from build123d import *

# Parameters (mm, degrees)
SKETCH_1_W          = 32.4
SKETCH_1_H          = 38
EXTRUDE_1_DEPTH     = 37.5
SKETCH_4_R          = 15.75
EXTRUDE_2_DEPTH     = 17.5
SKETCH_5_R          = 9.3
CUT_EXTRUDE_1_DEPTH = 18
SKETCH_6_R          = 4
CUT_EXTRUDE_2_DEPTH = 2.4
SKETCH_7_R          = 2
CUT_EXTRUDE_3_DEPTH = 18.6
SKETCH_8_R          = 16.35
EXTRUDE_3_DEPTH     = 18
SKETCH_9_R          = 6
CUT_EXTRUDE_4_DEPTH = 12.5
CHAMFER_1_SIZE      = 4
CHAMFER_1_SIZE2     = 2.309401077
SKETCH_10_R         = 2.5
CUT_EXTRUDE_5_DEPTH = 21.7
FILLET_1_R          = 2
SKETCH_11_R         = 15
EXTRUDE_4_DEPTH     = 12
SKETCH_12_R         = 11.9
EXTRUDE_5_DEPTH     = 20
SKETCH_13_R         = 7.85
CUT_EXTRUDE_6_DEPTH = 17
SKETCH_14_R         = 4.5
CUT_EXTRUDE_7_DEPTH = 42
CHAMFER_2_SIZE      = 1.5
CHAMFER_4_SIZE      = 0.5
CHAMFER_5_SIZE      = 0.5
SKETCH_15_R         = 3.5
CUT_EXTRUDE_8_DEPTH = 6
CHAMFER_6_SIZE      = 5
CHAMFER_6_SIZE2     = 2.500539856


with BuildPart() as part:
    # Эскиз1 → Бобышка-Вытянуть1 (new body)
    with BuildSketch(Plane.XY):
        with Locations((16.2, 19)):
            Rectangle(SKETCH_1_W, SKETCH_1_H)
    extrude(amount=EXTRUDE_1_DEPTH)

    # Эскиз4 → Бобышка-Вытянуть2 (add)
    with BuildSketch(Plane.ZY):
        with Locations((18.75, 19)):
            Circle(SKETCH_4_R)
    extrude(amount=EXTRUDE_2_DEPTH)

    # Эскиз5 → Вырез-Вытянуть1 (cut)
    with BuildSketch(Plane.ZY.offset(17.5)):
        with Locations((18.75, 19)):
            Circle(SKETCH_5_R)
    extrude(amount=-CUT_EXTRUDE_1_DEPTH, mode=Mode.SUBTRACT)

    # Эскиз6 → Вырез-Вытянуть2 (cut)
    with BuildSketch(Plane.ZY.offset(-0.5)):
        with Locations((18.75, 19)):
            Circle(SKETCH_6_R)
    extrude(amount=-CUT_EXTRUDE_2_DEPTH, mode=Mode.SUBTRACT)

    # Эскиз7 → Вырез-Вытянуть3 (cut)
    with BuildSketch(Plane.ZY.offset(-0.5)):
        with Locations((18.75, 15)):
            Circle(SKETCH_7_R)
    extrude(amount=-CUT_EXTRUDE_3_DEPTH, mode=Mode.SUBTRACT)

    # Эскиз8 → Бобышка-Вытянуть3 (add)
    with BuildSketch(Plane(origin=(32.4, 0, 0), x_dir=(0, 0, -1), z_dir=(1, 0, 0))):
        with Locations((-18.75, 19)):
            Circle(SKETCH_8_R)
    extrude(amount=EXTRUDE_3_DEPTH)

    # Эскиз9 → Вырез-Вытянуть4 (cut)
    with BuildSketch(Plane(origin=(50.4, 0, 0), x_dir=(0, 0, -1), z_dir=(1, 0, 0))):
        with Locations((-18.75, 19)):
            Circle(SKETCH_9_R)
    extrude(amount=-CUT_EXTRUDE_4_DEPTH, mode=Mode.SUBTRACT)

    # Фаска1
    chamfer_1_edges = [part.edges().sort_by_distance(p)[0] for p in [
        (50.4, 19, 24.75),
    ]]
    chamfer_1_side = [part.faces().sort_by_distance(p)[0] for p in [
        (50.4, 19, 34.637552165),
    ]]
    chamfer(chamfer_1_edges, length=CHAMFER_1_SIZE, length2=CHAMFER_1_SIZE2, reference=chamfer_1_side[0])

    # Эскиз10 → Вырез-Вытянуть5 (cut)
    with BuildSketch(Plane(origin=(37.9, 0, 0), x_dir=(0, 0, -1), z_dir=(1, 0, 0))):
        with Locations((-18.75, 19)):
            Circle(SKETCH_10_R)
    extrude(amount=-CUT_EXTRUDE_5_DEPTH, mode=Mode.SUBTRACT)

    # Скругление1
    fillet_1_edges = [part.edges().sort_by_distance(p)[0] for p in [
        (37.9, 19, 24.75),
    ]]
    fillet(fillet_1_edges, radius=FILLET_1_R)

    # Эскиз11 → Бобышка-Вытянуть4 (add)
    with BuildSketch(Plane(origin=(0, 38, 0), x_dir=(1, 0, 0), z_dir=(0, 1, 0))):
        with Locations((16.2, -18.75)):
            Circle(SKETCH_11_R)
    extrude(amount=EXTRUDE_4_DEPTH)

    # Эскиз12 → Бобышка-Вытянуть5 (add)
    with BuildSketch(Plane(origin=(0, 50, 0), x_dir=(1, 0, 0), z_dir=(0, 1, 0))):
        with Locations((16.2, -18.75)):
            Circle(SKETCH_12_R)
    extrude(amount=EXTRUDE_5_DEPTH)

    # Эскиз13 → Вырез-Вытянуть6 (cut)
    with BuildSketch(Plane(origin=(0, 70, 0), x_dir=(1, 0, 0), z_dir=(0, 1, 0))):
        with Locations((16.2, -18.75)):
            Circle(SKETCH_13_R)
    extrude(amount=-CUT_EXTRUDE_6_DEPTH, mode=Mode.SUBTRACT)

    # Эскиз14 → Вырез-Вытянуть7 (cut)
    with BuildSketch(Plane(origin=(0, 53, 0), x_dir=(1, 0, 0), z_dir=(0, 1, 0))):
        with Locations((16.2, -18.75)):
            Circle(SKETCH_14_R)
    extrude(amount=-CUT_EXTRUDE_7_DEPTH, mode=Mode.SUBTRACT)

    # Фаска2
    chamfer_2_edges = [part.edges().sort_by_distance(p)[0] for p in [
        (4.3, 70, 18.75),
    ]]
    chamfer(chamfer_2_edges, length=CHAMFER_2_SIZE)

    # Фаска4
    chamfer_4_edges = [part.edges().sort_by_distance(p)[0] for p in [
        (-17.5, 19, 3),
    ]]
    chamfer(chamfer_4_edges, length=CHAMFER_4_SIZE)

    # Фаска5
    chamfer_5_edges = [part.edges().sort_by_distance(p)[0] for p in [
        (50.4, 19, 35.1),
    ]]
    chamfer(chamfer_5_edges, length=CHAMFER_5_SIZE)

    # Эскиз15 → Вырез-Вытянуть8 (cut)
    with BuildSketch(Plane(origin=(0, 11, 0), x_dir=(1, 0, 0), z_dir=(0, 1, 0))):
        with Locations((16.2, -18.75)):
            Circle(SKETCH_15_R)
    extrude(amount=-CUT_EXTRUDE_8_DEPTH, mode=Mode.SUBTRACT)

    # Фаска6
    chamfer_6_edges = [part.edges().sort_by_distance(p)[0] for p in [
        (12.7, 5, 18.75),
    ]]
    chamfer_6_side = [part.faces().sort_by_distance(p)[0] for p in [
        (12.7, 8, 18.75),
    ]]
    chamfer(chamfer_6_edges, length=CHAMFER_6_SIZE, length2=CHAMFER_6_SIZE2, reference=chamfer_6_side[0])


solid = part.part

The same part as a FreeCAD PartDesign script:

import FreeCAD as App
import Part
import Sketcher
Q = App.Units.Quantity


def edges_at(feature, points):
    """Names of the edges that pass closest to the given points."""
    edges = feature.Shape.Edges
    near = lambda p: min(range(len(edges)), key=lambda i: edges[i].distToShape(Part.Vertex(*p))[0])
    return sorted({f"Edge{near(p) + 1}" for p in points})

doc = App.newDocument("Part")
body = doc.addObject("PartDesign::Body", "Body")

# Sketch on XY plane
sketch1 = body.newObject("Sketcher::SketchObject", "Sketch")
sketch1.AttachmentSupport = (doc.getObject("XY_Plane"), [""])
sketch1.MapMode = "FlatFace"
sketch1.addGeometry(Part.LineSegment(App.Vector(0, 38, 0), App.Vector(0, 0, 0)), False)
sketch1.addGeometry(Part.LineSegment(App.Vector(0, 0, 0), App.Vector(32, 0, 0)), False)
sketch1.addGeometry(Part.LineSegment(App.Vector(32, 0, 0), App.Vector(32, 38, 0)), False)
sketch1.addGeometry(Part.LineSegment(App.Vector(32, 38, 0), App.Vector(0, 38, 0)), False)
sketch1.addConstraint(Sketcher.Constraint("Coincident", 0, 2, 1, 1))
sketch1.addConstraint(Sketcher.Constraint("Coincident", 1, 2, 2, 1))
sketch1.addConstraint(Sketcher.Constraint("Coincident", 2, 2, 3, 1))
sketch1.addConstraint(Sketcher.Constraint("Coincident", 3, 2, 0, 1))
sketch1.addConstraint(Sketcher.Constraint("Vertical", 0))
sketch1.addConstraint(Sketcher.Constraint("Horizontal", 1))
sketch1.addConstraint(Sketcher.Constraint("Vertical", 2))
sketch1.addConstraint(Sketcher.Constraint("Horizontal", 3))
sketch1.addConstraint(Sketcher.Constraint("Coincident", 0, 2, -1, 1))
sketch1.addConstraint(Sketcher.Constraint("DistanceY", 0, 2, 0, 1, Q("38 mm")))
sketch1.addConstraint(Sketcher.Constraint("DistanceX", 1, 1, 1, 2, Q("32.4 mm")))
pad1 = body.newObject("PartDesign::Pad", "Pad")
pad1.Profile = sketch1
pad1.Length = 37.5

# Sketch on YZ plane
sketch2 = body.newObject("Sketcher::SketchObject", "Sketch001")
sketch2.AttachmentSupport = (doc.getObject("YZ_Plane"), [""])
sketch2.MapMode = "FlatFace"
sketch2.addGeometry(Part.Circle(App.Vector(19, 19, 0), App.Vector(0, 0, 1), 16), False)
sketch2.addConstraint(Sketcher.Constraint("Diameter", 0, Q("31.5 mm")))
sketch2.addConstraint(Sketcher.Constraint("DistanceX", -1, 1, 0, 3, Q("19 mm")))
sketch2.addConstraint(Sketcher.Constraint("DistanceY", -1, 1, 0, 3, Q("18.75 mm")))
pad2 = body.newObject("PartDesign::Pad", "Pad001")
pad2.Profile = sketch2
pad2.Length = 17.5
pad2.Reversed = True

# Sketch on YZ plane
sketch3 = body.newObject("Sketcher::SketchObject", "Sketch002")
sketch3.AttachmentSupport = (doc.getObject("YZ_Plane"), [""])
sketch3.MapMode = "FlatFace"
sketch3.AttachmentOffset = App.Placement(App.Vector(0, 0, -17.5), App.Rotation())
sketch3.addGeometry(Part.Circle(App.Vector(19, 19, 0), App.Vector(0, 0, 1), 9), False)
sketch3.addConstraint(Sketcher.Constraint("Diameter", 0, Q("18.6 mm")))
sketch3.addConstraint(Sketcher.Constraint("DistanceX", -1, 1, 0, 3, Q("19 mm")))
sketch3.addConstraint(Sketcher.Constraint("DistanceY", -1, 1, 0, 3, Q("18.75 mm")))
pocket1 = body.newObject("PartDesign::Pocket", "Pocket")
pocket1.Profile = sketch3
pocket1.Length = 18
pocket1.Reversed = True

# Sketch on YZ plane
sketch4 = body.newObject("Sketcher::SketchObject", "Sketch003")
sketch4.AttachmentSupport = (doc.getObject("YZ_Plane"), [""])
sketch4.MapMode = "FlatFace"
sketch4.AttachmentOffset = App.Placement(App.Vector(0, 0, 0.5), App.Rotation())
sketch4.addGeometry(Part.Circle(App.Vector(19, 18.8, 0), App.Vector(0, 0, 1), 4), False)
sketch4.addConstraint(Sketcher.Constraint("Diameter", 0, Q("8 mm")))
sketch4.addConstraint(Sketcher.Constraint("DistanceX", -1, 1, 0, 3, Q("19 mm")))
sketch4.addConstraint(Sketcher.Constraint("DistanceY", -1, 1, 0, 3, Q("18.75 mm")))
pocket2 = body.newObject("PartDesign::Pocket", "Pocket001")
pocket2.Profile = sketch4
pocket2.Length = 2.4
pocket2.Reversed = True

# Sketch on YZ plane
sketch5 = body.newObject("Sketcher::SketchObject", "Sketch004")
sketch5.AttachmentSupport = (doc.getObject("YZ_Plane"), [""])
sketch5.MapMode = "FlatFace"
sketch5.AttachmentOffset = App.Placement(App.Vector(0, 0, 0.5), App.Rotation())
sketch5.addGeometry(Part.Circle(App.Vector(15, 18.8, 0), App.Vector(0, 0, 1), 2), False)
sketch5.addConstraint(Sketcher.Constraint("Diameter", 0, Q("4 mm")))
sketch5.addConstraint(Sketcher.Constraint("DistanceX", -1, 1, 0, 3, Q("15 mm")))
sketch5.addConstraint(Sketcher.Constraint("DistanceY", -1, 1, 0, 3, Q("18.75 mm")))
pocket3 = body.newObject("PartDesign::Pocket", "Pocket002")
pocket3.Profile = sketch5
pocket3.Length = 18.6
pocket3.Reversed = True

# Sketch on YZ plane
sketch6 = body.newObject("Sketcher::SketchObject", "Sketch005")
sketch6.AttachmentSupport = (doc.getObject("YZ_Plane"), [""])
sketch6.MapMode = "FlatFace"
sketch6.AttachmentOffset = App.Placement(App.Vector(0, 0, 32.4), App.Rotation())
sketch6.addGeometry(Part.Circle(App.Vector(19, 19, 0), App.Vector(0, 0, 1), 16), False)
sketch6.addConstraint(Sketcher.Constraint("Diameter", 0, Q("32.7 mm")))
sketch6.addConstraint(Sketcher.Constraint("DistanceX", -1, 1, 0, 3, Q("19 mm")))
sketch6.addConstraint(Sketcher.Constraint("DistanceY", -1, 1, 0, 3, Q("18.75 mm")))
pad3 = body.newObject("PartDesign::Pad", "Pad002")
pad3.Profile = sketch6
pad3.Length = 18

# Sketch on YZ plane
sketch7 = body.newObject("Sketcher::SketchObject", "Sketch006")
sketch7.AttachmentSupport = (doc.getObject("YZ_Plane"), [""])
sketch7.MapMode = "FlatFace"
sketch7.AttachmentOffset = App.Placement(App.Vector(0, 0, 50.4), App.Rotation())
sketch7.addGeometry(Part.Circle(App.Vector(19, 19, 0), App.Vector(0, 0, 1), 6), False)
sketch7.addConstraint(Sketcher.Constraint("Diameter", 0, Q("12 mm")))
sketch7.addConstraint(Sketcher.Constraint("DistanceX", -1, 1, 0, 3, Q("19 mm")))
sketch7.addConstraint(Sketcher.Constraint("DistanceY", -1, 1, 0, 3, Q("18.75 mm")))
pocket4 = body.newObject("PartDesign::Pocket", "Pocket003")
pocket4.Profile = sketch7
pocket4.Length = 12.5
doc.recompute()

chamfer = body.newObject("PartDesign::Chamfer", "Chamfer")
chamfer.Base = (pocket4, edges_at(pocket4, [(50.4, 19, 24.75)]))
chamfer.ChamferType = "Two distances"
chamfer.Size = 4
chamfer.Size2 = 2.309401

# Sketch on YZ plane
sketch8 = body.newObject("Sketcher::SketchObject", "Sketch007")
sketch8.AttachmentSupport = (doc.getObject("YZ_Plane"), [""])
sketch8.MapMode = "FlatFace"
sketch8.AttachmentOffset = App.Placement(App.Vector(0, 0, 37.9), App.Rotation())
sketch8.addGeometry(Part.Circle(App.Vector(19, 18.8, 0), App.Vector(0, 0, 1), 2.5), False)
sketch8.addConstraint(Sketcher.Constraint("Diameter", 0, Q("5 mm")))
sketch8.addConstraint(Sketcher.Constraint("DistanceX", -1, 1, 0, 3, Q("19 mm")))
sketch8.addConstraint(Sketcher.Constraint("DistanceY", -1, 1, 0, 3, Q("18.75 mm")))
pocket5 = body.newObject("PartDesign::Pocket", "Pocket004")
pocket5.Profile = sketch8
pocket5.Length = 21.7
doc.recompute()

fillet = body.newObject("PartDesign::Fillet", "Fillet")
fillet.Base = (pocket5, edges_at(pocket5, [(37.9, 19, 24.75)]))
fillet.Radius = 2

# Sketch on XZ plane
sketch9 = body.newObject("Sketcher::SketchObject", "Sketch008")
sketch9.AttachmentSupport = (doc.getObject("XZ_Plane"), [""])
sketch9.MapMode = "FlatFace"
sketch9.AttachmentOffset = App.Placement(App.Vector(0, 0, -38), App.Rotation())
sketch9.addGeometry(Part.Circle(App.Vector(16, 19, 0), App.Vector(0, 0, 1), 15), False)
sketch9.addConstraint(Sketcher.Constraint("Diameter", 0, Q("30 mm")))
sketch9.addConstraint(Sketcher.Constraint("DistanceX", -1, 1, 0, 3, Q("16.2 mm")))
sketch9.addConstraint(Sketcher.Constraint("DistanceY", -1, 1, 0, 3, Q("18.75 mm")))
pad4 = body.newObject("PartDesign::Pad", "Pad003")
pad4.Profile = sketch9
pad4.Length = 12
pad4.Reversed = True

# Sketch on XZ plane
sketch10 = body.newObject("Sketcher::SketchObject", "Sketch009")
sketch10.AttachmentSupport = (doc.getObject("XZ_Plane"), [""])
sketch10.MapMode = "FlatFace"
sketch10.AttachmentOffset = App.Placement(App.Vector(0, 0, -50), App.Rotation())
sketch10.addGeometry(Part.Circle(App.Vector(16, 19, 0), App.Vector(0, 0, 1), 12), False)
sketch10.addConstraint(Sketcher.Constraint("Diameter", 0, Q("23.8 mm")))
sketch10.addConstraint(Sketcher.Constraint("DistanceX", -1, 1, 0, 3, Q("16.2 mm")))
sketch10.addConstraint(Sketcher.Constraint("DistanceY", -1, 1, 0, 3, Q("18.75 mm")))
pad5 = body.newObject("PartDesign::Pad", "Pad004")
pad5.Profile = sketch10
pad5.Length = 20
pad5.Reversed = True

# Sketch on XZ plane
sketch11 = body.newObject("Sketcher::SketchObject", "Sketch010")
sketch11.AttachmentSupport = (doc.getObject("XZ_Plane"), [""])
sketch11.MapMode = "FlatFace"
sketch11.AttachmentOffset = App.Placement(App.Vector(0, 0, -70), App.Rotation())
sketch11.addGeometry(Part.Circle(App.Vector(16, 19, 0), App.Vector(0, 0, 1), 8), False)
sketch11.addConstraint(Sketcher.Constraint("Diameter", 0, Q("15.7 mm")))
sketch11.addConstraint(Sketcher.Constraint("DistanceX", -1, 1, 0, 3, Q("16.2 mm")))
sketch11.addConstraint(Sketcher.Constraint("DistanceY", -1, 1, 0, 3, Q("18.75 mm")))
pocket6 = body.newObject("PartDesign::Pocket", "Pocket005")
pocket6.Profile = sketch11
pocket6.Length = 17
pocket6.Reversed = True

# Sketch on XZ plane
sketch12 = body.newObject("Sketcher::SketchObject", "Sketch011")
sketch12.AttachmentSupport = (doc.getObject("XZ_Plane"), [""])
sketch12.MapMode = "FlatFace"
sketch12.AttachmentOffset = App.Placement(App.Vector(0, 0, -53), App.Rotation())
sketch12.addGeometry(Part.Circle(App.Vector(16.2, 18.8, 0), App.Vector(0, 0, 1), 4.5), False)
sketch12.addConstraint(Sketcher.Constraint("Diameter", 0, Q("9 mm")))
sketch12.addConstraint(Sketcher.Constraint("DistanceX", -1, 1, 0, 3, Q("16.2 mm")))
sketch12.addConstraint(Sketcher.Constraint("DistanceY", -1, 1, 0, 3, Q("18.75 mm")))
pocket7 = body.newObject("PartDesign::Pocket", "Pocket006")
pocket7.Profile = sketch12
pocket7.Length = 42
pocket7.Reversed = True
doc.recompute()

chamfer2 = body.newObject("PartDesign::Chamfer", "Chamfer001")
chamfer2.Base = (pocket7, edges_at(pocket7, [(4.3, 70, 18.75)]))
chamfer2.Size = 1.5
doc.recompute()

chamfer3 = body.newObject("PartDesign::Chamfer", "Chamfer002")
chamfer3.Base = (chamfer2, edges_at(chamfer2, [(-17.5, 19, 3)]))
chamfer3.Size = 0.5
doc.recompute()

chamfer4 = body.newObject("PartDesign::Chamfer", "Chamfer003")
chamfer4.Base = (chamfer3, edges_at(chamfer3, [(50.4, 19, 35.1)]))
chamfer4.Size = 0.5

# Sketch on XZ plane
sketch13 = body.newObject("Sketcher::SketchObject", "Sketch012")
sketch13.AttachmentSupport = (doc.getObject("XZ_Plane"), [""])
sketch13.MapMode = "FlatFace"
sketch13.AttachmentOffset = App.Placement(App.Vector(0, 0, -11), App.Rotation())
sketch13.addGeometry(Part.Circle(App.Vector(16.2, 18.8, 0), App.Vector(0, 0, 1), 3.5), False)
sketch13.addConstraint(Sketcher.Constraint("Diameter", 0, Q("7 mm")))
sketch13.addConstraint(Sketcher.Constraint("DistanceX", -1, 1, 0, 3, Q("16.2 mm")))
sketch13.addConstraint(Sketcher.Constraint("DistanceY", -1, 1, 0, 3, Q("18.75 mm")))
pocket8 = body.newObject("PartDesign::Pocket", "Pocket007")
pocket8.Profile = sketch13
pocket8.Length = 6
pocket8.Reversed = True
doc.recompute()

chamfer5 = body.newObject("PartDesign::Chamfer", "Chamfer004")
chamfer5.Base = (pocket8, edges_at(pocket8, [(12.7, 5, 18.75)]))
chamfer5.ChamferType = "Two distances"
chamfer5.Size = 5
chamfer5.Size2 = 2.50054

doc.recompute()
